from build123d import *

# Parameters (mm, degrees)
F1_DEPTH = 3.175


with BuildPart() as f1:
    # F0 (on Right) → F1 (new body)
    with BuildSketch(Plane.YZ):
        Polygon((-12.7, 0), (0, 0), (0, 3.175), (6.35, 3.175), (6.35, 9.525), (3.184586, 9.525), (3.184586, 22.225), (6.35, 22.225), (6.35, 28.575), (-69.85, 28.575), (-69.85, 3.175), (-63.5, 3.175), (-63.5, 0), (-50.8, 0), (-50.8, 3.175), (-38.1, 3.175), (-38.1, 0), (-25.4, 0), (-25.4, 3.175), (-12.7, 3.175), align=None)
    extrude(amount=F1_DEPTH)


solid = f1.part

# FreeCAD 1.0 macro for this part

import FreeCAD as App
import Part
import Sketcher
Q = App.Units.Quantity

doc = App.newDocument("Part")
body = doc.addObject("PartDesign::Body", "Body")

sketch1 = body.newObject("Sketcher::SketchObject", "Sketch")
sketch1.AttachmentSupport = (doc.getObject("YZ_Plane"), [""])
sketch1.MapMode = "FlatFace"
sketch1.addGeometry([
    Part.LineSegment(App.Vector(-12.7, 0, 0), App.Vector(0, 0, 0)),
    Part.LineSegment(App.Vector(0, 0, 0), App.Vector(0, 3.2, 0)),
    Part.LineSegment(App.Vector(0, 3.2, 0), App.Vector(6.3, 3.2, 0)),
    Part.LineSegment(App.Vector(6.3, 3.2, 0), App.Vector(6.3, 9.5, 0)),
    Part.LineSegment(App.Vector(6.3, 9.5, 0), App.Vector(3.2, 9.5, 0)),
    Part.LineSegment(App.Vector(3.2, 9.5, 0), App.Vector(3.2, 22.2, 0)),
    Part.LineSegment(App.Vector(3.2, 22.2, 0), App.Vector(6.3, 22.2, 0)),
    Part.LineSegment(App.Vector(6.3, 22.2, 0), App.Vector(6.3, 28.6, 0)),
    Part.LineSegment(App.Vector(6.3, 28.6, 0), App.Vector(-69.8, 28.6, 0)),
    Part.LineSegment(App.Vector(-69.8, 28.6, 0), App.Vector(-69.8, 3.2, 0)),
    Part.LineSegment(App.Vector(-69.8, 3.2, 0), App.Vector(-63.5, 3.2, 0)),
    Part.LineSegment(App.Vector(-63.5, 3.2, 0), App.Vector(-63.5, 0, 0)),
    Part.LineSegment(App.Vector(-63.5, 0, 0), App.Vector(-50.8, 0, 0)),
    Part.LineSegment(App.Vector(-50.8, 0, 0), App.Vector(-50.8, 3.2, 0)),
    Part.LineSegment(App.Vector(-50.8, 3.2, 0), App.Vector(-38.1, 3.2, 0)),
    Part.LineSegment(App.Vector(-38.1, 3.2, 0), App.Vector(-38.1, 0, 0)),
    Part.LineSegment(App.Vector(-38.1, 0, 0), App.Vector(-25.4, 0, 0)),
    Part.LineSegment(App.Vector(-25.4, 0, 0), App.Vector(-25.4, 3.2, 0)),
    Part.LineSegment(App.Vector(-25.4, 3.2, 0), App.Vector(-12.7, 3.2, 0)),
    Part.LineSegment(App.Vector(-12.7, 3.2, 0), App.Vector(-12.7, 0, 0)),
], False)
sketch1.addConstraint([
    Sketcher.Constraint("Coincident", 0, 2, 1, 1),
    Sketcher.Constraint("Coincident", 1, 2, 2, 1),
    Sketcher.Constraint("Coincident", 2, 2, 3, 1),
    Sketcher.Constraint("Coincident", 3, 2, 4, 1),
    Sketcher.Constraint("Coincident", 4, 2, 5, 1),
    Sketcher.Constraint("Coincident", 5, 2, 6, 1),
    Sketcher.Constraint("Coincident", 6, 2, 7, 1),
    Sketcher.Constraint("Coincident", 7, 2, 8, 1),
    Sketcher.Constraint("Coincident", 8, 2, 9, 1),
    Sketcher.Constraint("Coincident", 9, 2, 10, 1),
    Sketcher.Constraint("Coincident", 10, 2, 11, 1),
    Sketcher.Constraint("Coincident", 11, 2, 12, 1),
    Sketcher.Constraint("Coincident", 12, 2, 13, 1),
    Sketcher.Constraint("Coincident", 13, 2, 14, 1),
    Sketcher.Constraint("Coincident", 14, 2, 15, 1),
    Sketcher.Constraint("Coincident", 15, 2, 16, 1),
    Sketcher.Constraint("Coincident", 16, 2, 17, 1),
    Sketcher.Constraint("Coincident", 17, 2, 18, 1),
    Sketcher.Constraint("Coincident", 18, 2, 19, 1),
    Sketcher.Constraint("Coincident", 19, 2, 0, 1),
    Sketcher.Constraint("Horizontal", 0),
    Sketcher.Constraint("Vertical", 1),
    Sketcher.Constraint("Horizontal", 2),
    Sketcher.Constraint("Vertical", 3),
    Sketcher.Constraint("Horizontal", 4),
    Sketcher.Constraint("Vertical", 5),
    Sketcher.Constraint("Horizontal", 6),
    Sketcher.Constraint("Vertical", 7),
    Sketcher.Constraint("Horizontal", 8),
    Sketcher.Constraint("Vertical", 9),
    Sketcher.Constraint("Horizontal", 10),
    Sketcher.Constraint("Vertical", 11),
    Sketcher.Constraint("Horizontal", 12),
    Sketcher.Constraint("Vertical", 13),
    Sketcher.Constraint("Horizontal", 14),
    Sketcher.Constraint("Vertical", 15),
    Sketcher.Constraint("Horizontal", 16),
    Sketcher.Constraint("Vertical", 17),
    Sketcher.Constraint("Horizontal", 18),
    Sketcher.Constraint("Vertical", 19),
    Sketcher.Constraint("Coincident", 0, 2, -1, 1),
    Sketcher.Constraint("PointOnObject", 11, 2, -1),
    Sketcher.Constraint("PointOnObject", 15, 2, -1),
    Sketcher.Constraint("Horizontal", 2, 2, 9, 2),
    Sketcher.Constraint("Horizontal", 10, 2, 13, 2),
    Sketcher.Constraint("Horizontal", 14, 2, 17, 2),
    Sketcher.Constraint("Vertical", 3, 2, 6, 2),
    Sketcher.Constraint("Equal", 2, 10),
    Sketcher.Constraint("Equal", 0, 12),
    Sketcher.Constraint("Equal", 12, 14),
    Sketcher.Constraint("Equal", 14, 16),
    Sketcher.Constraint("Equal", 16, 18),
    Sketcher.Constraint("Equal", 10, 3),
    Sketcher.Constraint("Equal", 18, 5),
    Sketcher.Constraint("Equal", 3, 7),
    Sketcher.Constraint("DistanceX", 8, 2, 8, 1, Q("3 in")),
    Sketcher.Constraint("DistanceY", 9, 2, 9, 1, Q("1 in")),
    Sketcher.Constraint("DistanceY", 1, 1, 1, 2, Q("0.125 in")),
    Sketcher.Constraint("DistanceX", 4, 2, 4, 1, Q("3.165414 mm")),
])
pad1 = body.newObject("PartDesign::Pad", "Pad")
pad1.Profile = sketch1
pad1.Length = Q("0.125 in")

doc.recompute()
